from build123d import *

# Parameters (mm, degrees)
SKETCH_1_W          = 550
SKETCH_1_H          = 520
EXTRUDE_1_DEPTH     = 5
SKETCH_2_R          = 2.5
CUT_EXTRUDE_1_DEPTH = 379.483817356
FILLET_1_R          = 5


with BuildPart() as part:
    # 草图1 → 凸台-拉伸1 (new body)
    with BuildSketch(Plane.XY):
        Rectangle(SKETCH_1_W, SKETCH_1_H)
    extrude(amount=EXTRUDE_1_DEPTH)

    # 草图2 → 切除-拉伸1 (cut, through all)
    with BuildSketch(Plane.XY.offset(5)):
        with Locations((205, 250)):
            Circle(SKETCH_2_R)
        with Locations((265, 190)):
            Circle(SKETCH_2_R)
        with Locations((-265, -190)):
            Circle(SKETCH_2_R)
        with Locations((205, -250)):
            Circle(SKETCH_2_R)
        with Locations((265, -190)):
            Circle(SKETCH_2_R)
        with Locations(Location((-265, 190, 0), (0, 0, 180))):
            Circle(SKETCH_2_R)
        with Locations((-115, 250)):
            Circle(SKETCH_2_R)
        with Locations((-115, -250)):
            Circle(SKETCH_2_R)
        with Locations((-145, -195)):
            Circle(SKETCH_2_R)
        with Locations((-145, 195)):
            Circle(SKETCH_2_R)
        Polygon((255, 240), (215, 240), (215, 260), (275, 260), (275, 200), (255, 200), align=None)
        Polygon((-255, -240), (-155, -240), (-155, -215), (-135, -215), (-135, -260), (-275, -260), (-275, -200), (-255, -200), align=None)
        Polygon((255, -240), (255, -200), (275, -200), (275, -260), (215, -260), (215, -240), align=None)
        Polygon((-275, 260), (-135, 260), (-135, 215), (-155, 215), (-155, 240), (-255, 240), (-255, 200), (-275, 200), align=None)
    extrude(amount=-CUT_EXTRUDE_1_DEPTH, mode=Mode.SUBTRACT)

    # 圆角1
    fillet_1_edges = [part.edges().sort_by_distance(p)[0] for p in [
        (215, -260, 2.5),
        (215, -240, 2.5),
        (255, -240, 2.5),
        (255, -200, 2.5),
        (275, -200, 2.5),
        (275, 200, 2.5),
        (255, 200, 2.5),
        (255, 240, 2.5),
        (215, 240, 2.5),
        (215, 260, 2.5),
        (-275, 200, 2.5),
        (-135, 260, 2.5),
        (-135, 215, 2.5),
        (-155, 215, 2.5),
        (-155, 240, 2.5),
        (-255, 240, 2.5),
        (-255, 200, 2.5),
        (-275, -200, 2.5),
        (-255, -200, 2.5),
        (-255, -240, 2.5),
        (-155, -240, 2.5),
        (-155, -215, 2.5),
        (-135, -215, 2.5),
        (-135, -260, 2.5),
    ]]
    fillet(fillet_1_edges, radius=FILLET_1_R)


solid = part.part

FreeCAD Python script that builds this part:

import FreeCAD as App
import Part
import Sketcher
from FreeCAD import Vector
Q = App.Units.Quantity


def edges_at(feature, points):
    """Names of the edges that pass closest to the given points."""
    edges = feature.Shape.Edges
    near = lambda p: min(range(len(edges)), key=lambda i: edges[i].distToShape(Part.Vertex(*p))[0])
    return sorted({f"Edge{near(p) + 1}" for p in points})

doc = App.newDocument("Part")
params = doc.addObject("Spreadsheet::Sheet", "Params")
for row, (alias, value) in enumerate([
    ("sketch1_width", "550 mm"),
    ("sketch1_height", "520 mm"),
    ("pad1_length", "5 mm"),
    ("sketch2_diameter", "5 mm"),
    ("sketch2_width", "40 mm"),
    ("sketch2_width2", "20 mm"),
    ("sketch2_width3", "100 mm"),
    ("sketch2_height", "45 mm"),
    ("fillet_radius", "5 mm"),
], start=1):
    params.set(f"A{row}", alias)
    params.set(f"B{row}", "=" + value)
    params.setAlias(f"B{row}", alias)

body = doc.addObject("PartDesign::Body", "Body")

sketch1 = doc.addObject("Sketcher::SketchObject", "Sketch")
body.addObject(sketch1)
sketch1.AttachmentSupport = (doc.XY_Plane, [""])
sketch1.MapMode = "FlatFace"
sketch1.addGeometry([
    Part.LineSegment(Vector(-275, 260, 0), Vector(-275, -260, 0)),
    Part.LineSegment(Vector(-275, -260, 0), Vector(275, -260, 0)),
    Part.LineSegment(Vector(275, -260, 0), Vector(275, 260, 0)),
    Part.LineSegment(Vector(275, 260, 0), Vector(-275, 260, 0)),
], False)
sketch1.addConstraint([
    Sketcher.Constraint("Coincident", 0, 2, 1, 1),
    Sketcher.Constraint("Coincident", 1, 2, 2, 1),
    Sketcher.Constraint("Coincident", 2, 2, 3, 1),
    Sketcher.Constraint("Coincident", 3, 2, 0, 1),
    Sketcher.Constraint("Vertical", 0),
    Sketcher.Constraint("Horizontal", 1),
    Sketcher.Constraint("Vertical", 2),
    Sketcher.Constraint("Horizontal", 3),
    Sketcher.Constraint("Symmetric", 0, 2, 2, 2, -1, 1),
    Sketcher.Constraint("DistanceX", 1, 1, 1, 2, Q("550 mm")),
    Sketcher.Constraint("DistanceY", 0, 2, 0, 1, Q("520 mm")),
])
sketch1.setExpression("Constraints[9]", "Params.sketch1_width")
sketch1.setExpression("Constraints[10]", "Params.sketch1_height")
pad1 = doc.addObject("PartDesign::Pad", "Pad")
body.addObject(pad1)
pad1.Profile = sketch1
pad1.setExpression("Length", "Params.pad1_length")

sketch2 = doc.addObject("Sketcher::SketchObject", "Sketch001")
body.addObject(sketch2)
sketch2.AttachmentSupport = (doc.XY_Plane, [""])
sketch2.MapMode = "FlatFace"
sketch2.AttachmentOffset = App.Placement(Vector(0, 0, 5), App.Rotation())
sketch2.addGeometry([
    Part.Circle(Vector(205, 250, 0), Vector(0, 0, 1), 2.5),
    Part.Circle(Vector(265, 190, 0), Vector(0, 0, 1), 2.5),
    Part.Circle(Vector(-265, -190, 0), Vector(0, 0, 1), 2.5),
    Part.Circle(Vector(205, -250, 0), Vector(0, 0, 1), 2.5),
    Part.Circle(Vector(265, -190, 0), Vector(0, 0, 1), 2.5),
    Part.Circle(Vector(-265, 190, 0), Vector(0, 0, 1), 2.5),
    Part.Circle(Vector(-115, 250, 0), Vector(0, 0, 1), 2.5),
    Part.Circle(Vector(-115, -250, 0), Vector(0, 0, 1), 2.5),
    Part.Circle(Vector(-145, -195, 0), Vector(0, 0, 1), 2.5),
    Part.Circle(Vector(-145, 195, 0), Vector(0, 0, 1), 2.5),
    Part.LineSegment(Vector(215, 240, 0), Vector(255, 240, 0)),
    Part.LineSegment(Vector(255, 240, 0), Vector(255, 200, 0)),
    Part.LineSegment(Vector(255, 200, 0), Vector(275, 200, 0)),
    Part.LineSegment(Vector(275, 200, 0), Vector(275, 260, 0)),
    Part.LineSegment(Vector(275, 260, 0), Vector(215, 260, 0)),
    Part.LineSegment(Vector(215, 260, 0), Vector(215, 240, 0)),
    Part.LineSegment(Vector(-155, -240, 0), Vector(-255, -240, 0)),
    Part.LineSegment(Vector(-255, -240, 0), Vector(-255, -200, 0)),
    Part.LineSegment(Vector(-255, -200, 0), Vector(-275, -200, 0)),
    Part.LineSegment(Vector(-275, -200, 0), Vector(-275, -260, 0)),
    Part.LineSegment(Vector(-275, -260, 0), Vector(-135, -260, 0)),
    Part.LineSegment(Vector(-135, -260, 0), Vector(-135, -215, 0)),
    Part.LineSegment(Vector(-135, -215, 0), Vector(-155, -215, 0)),
    Part.LineSegment(Vector(-155, -215, 0), Vector(-155, -240, 0)),
    Part.LineSegment(Vector(255, -200, 0), Vector(255, -240, 0)),
    Part.LineSegment(Vector(255, -240, 0), Vector(215, -240, 0)),
    Part.LineSegment(Vector(215, -240, 0), Vector(215, -260, 0)),
    Part.LineSegment(Vector(215, -260, 0), Vector(275, -260, 0)),
    Part.LineSegment(Vector(275, -260, 0), Vector(275, -200, 0)),
    Part.LineSegment(Vector(275, -200, 0), Vector(255, -200, 0)),
    Part.LineSegment(Vector(-135, 260, 0), Vector(-275, 260, 0)),
    Part.LineSegment(Vector(-275, 260, 0), Vector(-275, 200, 0)),
    Part.LineSegment(Vector(-275, 200, 0), Vector(-255, 200, 0)),
    Part.LineSegment(Vector(-255, 200, 0), Vector(-255, 240, 0)),
    Part.LineSegment(Vector(-255, 240, 0), Vector(-155, 240, 0)),
    Part.LineSegment(Vector(-155, 240, 0), Vector(-155, 215, 0)),
    Part.LineSegment(Vector(-155, 215, 0), Vector(-135, 215, 0)),
    Part.LineSegment(Vector(-135, 215, 0), Vector(-135, 260, 0)),
], False)
sketch2.addConstraint([
    Sketcher.Constraint("Coincident", 10, 2, 11, 1),
    Sketcher.Constraint("Coincident", 11, 2, 12, 1),
    Sketcher.Constraint("Coincident", 12, 2, 13, 1),
    Sketcher.Constraint("Coincident", 13, 2, 14, 1),
    Sketcher.Constraint("Coincident", 14, 2, 15, 1),
    Sketcher.Constraint("Coincident", 15, 2, 10, 1),
    Sketcher.Constraint("Coincident", 16, 2, 17, 1),
    Sketcher.Constraint("Coincident", 17, 2, 18, 1),
    Sketcher.Constraint("Coincident", 18, 2, 19, 1),
    Sketcher.Constraint("Coincident", 19, 2, 20, 1),
    Sketcher.Constraint("Coincident", 20, 2, 21, 1),
    Sketcher.Constraint("Coincident", 21, 2, 22, 1),
    Sketcher.Constraint("Coincident", 22, 2, 23, 1),
    Sketcher.Constraint("Coincident", 23, 2, 16, 1),
    Sketcher.Constraint("Coincident", 24, 2, 25, 1),
    Sketcher.Constraint("Coincident", 25, 2, 26, 1),
    Sketcher.Constraint("Coincident", 26, 2, 27, 1),
    Sketcher.Constraint("Coincident", 27, 2, 28, 1),
    Sketcher.Constraint("Coincident", 28, 2, 29, 1),
    Sketcher.Constraint("Coincident", 29, 2, 24, 1),
    Sketcher.Constraint("Coincident", 30, 2, 31, 1),
    Sketcher.Constraint("Coincident", 31, 2, 32, 1),
    Sketcher.Constraint("Coincident", 32, 2, 33, 1),
    Sketcher.Constraint("Coincident", 33, 2, 34, 1),
    Sketcher.Constraint("Coincident", 34, 2, 35, 1),
    Sketcher.Constraint("Coincident", 35, 2, 36, 1),
    Sketcher.Constraint("Coincident", 36, 2, 37, 1),
    Sketcher.Constraint("Coincident", 37, 2, 30, 1),
    Sketcher.Constraint("Horizontal", 10),
    Sketcher.Constraint("Vertical", 11),
    Sketcher.Constraint("Horizontal", 12),
    Sketcher.Constraint("Vertical", 13),
    Sketcher.Constraint("Horizontal", 14),
    Sketcher.Constraint("Vertical", 15),
    Sketcher.Constraint("Horizontal", 16),
    Sketcher.Constraint("Vertical", 17),
    Sketcher.Constraint("Horizontal", 18),
    Sketcher.Constraint("Vertical", 19),
    Sketcher.Constraint("Horizontal", 20),
    Sketcher.Constraint("Vertical", 21),
    Sketcher.Constraint("Horizontal", 22),
    Sketcher.Constraint("Vertical", 23),
    Sketcher.Constraint("Vertical", 24),
    Sketcher.Constraint("Horizontal", 25),
    Sketcher.Constraint("Vertical", 26),
    Sketcher.Constraint("Horizontal", 27),
    Sketcher.Constraint("Vertical", 28),
    Sketcher.Constraint("Horizontal", 29),
    Sketcher.Constraint("Horizontal", 30),
    Sketcher.Constraint("Vertical", 31),
    Sketcher.Constraint("Horizontal", 32),
    Sketcher.Constraint("Vertical", 33),
    Sketcher.Constraint("Horizontal", 34),
    Sketcher.Constraint("Vertical", 35),
    Sketcher.Constraint("Horizontal", 36),
    Sketcher.Constraint("Vertical", 37),
    Sketcher.Constraint("Equal", 0, 1),
    Sketcher.Constraint("Equal", 1, 2),
    Sketcher.Constraint("Equal", 2, 3),
    Sketcher.Constraint("Equal", 3, 4),
    Sketcher.Constraint("Equal", 4, 5),
    Sketcher.Constraint("Equal", 5, 6),
    Sketcher.Constraint("Equal", 6, 7),
    Sketcher.Constraint("Equal", 7, 8),
    Sketcher.Constraint("Equal", 8, 9),
    Sketcher.Constraint("Symmetric", 1, 3, 2, 3, -1, 1),
    Sketcher.Constraint("Symmetric", 4, 3, 5, 3, -1, 1),
    Sketcher.Constraint("Symmetric", 10, 2, 16, 2, -1, 1),
    Sketcher.Constraint("Symmetric", 12, 2, 18, 2, -1, 1),
    Sketcher.Constraint("Symmetric", 27, 2, 30, 2, -1, 1),
    Sketcher.Constraint("Symmetric", 29, 2, 32, 2, -1, 1),
    Sketcher.Constraint("Symmetric", 2, 3, 4, 3, -2),
    Sketcher.Constraint("Symmetric", 16, 2, 24, 2, -2),
    Sketcher.Constraint("Symmetric", 19, 2, 27, 2, -2),
    Sketcher.Constraint("Symmetric", 0, 3, 3, 3, -1),
    Sketcher.Constraint("Symmetric", 6, 3, 7, 3, -1),
    Sketcher.Constraint("Symmetric", 8, 3, 9, 3, -1),
    Sketcher.Constraint("Symmetric", 14, 2, 26, 2, -1),
    Sketcher.Constraint("Symmetric", 23, 2, 34, 2, -1),
    Sketcher.Constraint("Symmetric", 21, 2, 36, 2, -1),
    Sketcher.Constraint("Horizontal", 0, 3, 6, 3),
    Sketcher.Constraint("Horizontal", 18, 2, 28, 2),
    Sketcher.Constraint("Equal", 18, 22),
    Sketcher.Constraint("Equal", 25, 11),
    Sketcher.Constraint("Equal", 27, 13),
    Sketcher.Constraint("Diameter", 0, Q("5 mm")),
    Sketcher.Constraint("DistanceX", 10, 1, 10, 2, Q("40 mm")),
    Sketcher.Constraint("DistanceX", 12, 1, 12, 2, Q("20 mm")),
    Sketcher.Constraint("DistanceX", 16, 2, 16, 1, Q("100 mm")),
    Sketcher.Constraint("DistanceY", 21, 1, 21, 2, Q("45 mm")),
    Sketcher.Constraint("DistanceX", -1, 1, 0, 3, Q("205 mm")),
    Sketcher.Constraint("DistanceY", -1, 1, 0, 3, Q("250 mm")),
    Sketcher.Constraint("DistanceX", -1, 1, 1, 3, Q("265 mm")),
    Sketcher.Constraint("DistanceY", -1, 1, 1, 3, Q("190 mm")),
    Sketcher.Constraint("DistanceX", 6, 3, -1, 1, Q("115 mm")),
    Sketcher.Constraint("DistanceX", 8, 3, -1, 1, Q("145 mm")),
    Sketcher.Constraint("DistanceY", 8, 3, -1, 1, Q("195 mm")),
    Sketcher.Constraint("DistanceX", -1, 1, 10, 2, Q("255 mm")),
    Sketcher.Constraint("DistanceY", -1, 1, 10, 2, Q("240 mm")),
])
sketch2.setExpression("Constraints[85]", "Params.sketch2_diameter")
sketch2.setExpression("Constraints[86]", "Params.sketch2_width")
sketch2.setExpression("Constraints[87]", "Params.sketch2_width2")
sketch2.setExpression("Constraints[88]", "Params.sketch2_width3")
sketch2.setExpression("Constraints[89]", "Params.sketch2_height")
pocket1 = doc.addObject("PartDesign::Pocket", "Pocket")
body.addObject(pocket1)
pocket1.Profile = sketch2
pocket1.Type = "ThroughAll"
doc.recompute()

fillet = doc.addObject("PartDesign::Fillet", "Fillet")
body.addObject(fillet)
fillet.Base = (pocket1, edges_at(pocket1, [
    (215, -260, 2.5),
    (215, -240, 2.5),
    (255, -240, 2.5),
    (255, -200, 2.5),
    (275, -200, 2.5),
    (275, 200, 2.5),
    (255, 200, 2.5),
    (255, 240, 2.5),
    (215, 240, 2.5),
    (215, 260, 2.5),
    (-275, 200, 2.5),
    (-135, 260, 2.5),
    (-135, 215, 2.5),
    (-155, 215, 2.5),
    (-155, 240, 2.5),
    (-255, 240, 2.5),
    (-255, 200, 2.5),
    (-275, -200, 2.5),
    (-255, -200, 2.5),
    (-255, -240, 2.5),
    (-155, -240, 2.5),
    (-155, -215, 2.5),
    (-135, -215, 2.5),
    (-135, -260, 2.5),
]))
fillet.setExpression("Radius", "Params.fillet_radius")

doc.recompute()
